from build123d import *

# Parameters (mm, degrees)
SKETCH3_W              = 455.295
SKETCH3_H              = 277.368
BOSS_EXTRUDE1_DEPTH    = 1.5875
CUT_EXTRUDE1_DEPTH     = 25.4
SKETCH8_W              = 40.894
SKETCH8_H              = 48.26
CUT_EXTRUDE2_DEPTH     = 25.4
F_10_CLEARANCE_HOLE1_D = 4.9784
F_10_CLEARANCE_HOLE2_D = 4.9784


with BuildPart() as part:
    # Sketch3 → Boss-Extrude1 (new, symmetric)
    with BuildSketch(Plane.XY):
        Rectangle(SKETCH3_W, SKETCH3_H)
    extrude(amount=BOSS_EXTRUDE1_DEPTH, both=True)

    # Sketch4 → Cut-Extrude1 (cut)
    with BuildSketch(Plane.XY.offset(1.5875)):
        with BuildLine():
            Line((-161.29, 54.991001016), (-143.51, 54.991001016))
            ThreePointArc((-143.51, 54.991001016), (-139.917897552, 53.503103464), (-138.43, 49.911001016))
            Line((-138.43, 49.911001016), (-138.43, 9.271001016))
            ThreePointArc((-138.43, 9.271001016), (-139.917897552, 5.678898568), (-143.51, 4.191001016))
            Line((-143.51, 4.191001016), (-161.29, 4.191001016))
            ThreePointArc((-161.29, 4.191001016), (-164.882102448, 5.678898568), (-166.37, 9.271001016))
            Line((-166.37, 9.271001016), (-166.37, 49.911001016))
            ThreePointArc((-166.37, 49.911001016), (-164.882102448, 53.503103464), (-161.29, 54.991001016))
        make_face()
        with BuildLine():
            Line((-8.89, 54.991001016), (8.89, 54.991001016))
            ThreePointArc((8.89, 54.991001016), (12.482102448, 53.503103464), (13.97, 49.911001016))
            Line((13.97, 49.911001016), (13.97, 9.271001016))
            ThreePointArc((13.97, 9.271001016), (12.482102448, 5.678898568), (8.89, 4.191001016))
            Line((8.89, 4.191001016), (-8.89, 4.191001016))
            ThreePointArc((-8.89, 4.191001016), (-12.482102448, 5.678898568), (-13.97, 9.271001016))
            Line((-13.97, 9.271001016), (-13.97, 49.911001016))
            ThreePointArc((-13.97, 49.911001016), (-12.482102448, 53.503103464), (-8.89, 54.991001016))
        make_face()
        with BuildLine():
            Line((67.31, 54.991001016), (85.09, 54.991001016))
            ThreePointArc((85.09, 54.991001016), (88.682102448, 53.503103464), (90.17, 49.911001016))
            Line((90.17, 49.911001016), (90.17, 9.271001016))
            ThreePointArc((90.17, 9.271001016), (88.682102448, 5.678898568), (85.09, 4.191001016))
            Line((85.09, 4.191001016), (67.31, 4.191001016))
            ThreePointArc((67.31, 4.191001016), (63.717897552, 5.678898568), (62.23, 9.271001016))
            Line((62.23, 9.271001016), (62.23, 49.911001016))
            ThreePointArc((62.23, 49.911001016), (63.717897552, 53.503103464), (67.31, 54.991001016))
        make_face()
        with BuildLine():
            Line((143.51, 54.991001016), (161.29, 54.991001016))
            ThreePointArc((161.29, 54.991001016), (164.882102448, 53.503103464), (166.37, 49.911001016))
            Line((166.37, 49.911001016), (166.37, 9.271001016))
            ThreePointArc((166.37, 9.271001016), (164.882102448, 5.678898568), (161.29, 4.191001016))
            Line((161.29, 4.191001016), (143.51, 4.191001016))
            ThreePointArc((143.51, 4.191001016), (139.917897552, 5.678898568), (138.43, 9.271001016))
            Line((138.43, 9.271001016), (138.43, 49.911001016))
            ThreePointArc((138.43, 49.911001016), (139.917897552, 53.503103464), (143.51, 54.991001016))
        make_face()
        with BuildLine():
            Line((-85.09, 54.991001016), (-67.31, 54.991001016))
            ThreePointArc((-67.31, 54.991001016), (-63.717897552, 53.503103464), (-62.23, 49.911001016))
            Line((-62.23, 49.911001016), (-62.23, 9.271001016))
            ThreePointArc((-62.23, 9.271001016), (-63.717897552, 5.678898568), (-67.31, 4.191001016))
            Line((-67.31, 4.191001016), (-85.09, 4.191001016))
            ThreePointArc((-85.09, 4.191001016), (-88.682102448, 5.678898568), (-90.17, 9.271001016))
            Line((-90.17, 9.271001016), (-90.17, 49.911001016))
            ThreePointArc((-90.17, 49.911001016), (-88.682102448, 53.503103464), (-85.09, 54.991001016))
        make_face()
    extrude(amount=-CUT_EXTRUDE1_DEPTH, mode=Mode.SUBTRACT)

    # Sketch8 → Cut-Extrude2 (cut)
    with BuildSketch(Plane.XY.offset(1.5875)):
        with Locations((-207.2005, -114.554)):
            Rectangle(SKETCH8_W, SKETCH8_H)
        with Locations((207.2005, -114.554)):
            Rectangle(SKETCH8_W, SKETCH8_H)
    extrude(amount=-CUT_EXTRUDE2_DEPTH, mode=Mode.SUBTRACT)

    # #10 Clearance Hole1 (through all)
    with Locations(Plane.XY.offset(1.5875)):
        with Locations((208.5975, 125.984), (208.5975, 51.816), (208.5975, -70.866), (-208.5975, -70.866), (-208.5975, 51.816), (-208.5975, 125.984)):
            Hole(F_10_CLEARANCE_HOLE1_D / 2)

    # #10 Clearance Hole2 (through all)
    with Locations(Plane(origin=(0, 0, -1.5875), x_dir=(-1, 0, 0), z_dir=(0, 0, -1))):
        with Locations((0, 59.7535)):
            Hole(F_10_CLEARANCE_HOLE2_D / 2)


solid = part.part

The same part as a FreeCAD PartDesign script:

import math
import FreeCAD as App
import Part
import Sketcher
from FreeCAD import Vector
Q = App.Units.Quantity


def add_polygon(sketch, points):
    """Adds a closed chain of lines whose ends are joined by coincident constraints."""
    first, n = sketch.GeometryCount, len(points)
    for a, b in zip(points, points[1:] + points[:1]):
        sketch.addGeometry(Part.LineSegment(App.Vector(*a, 0), App.Vector(*b, 0)), False)
    for i in range(n):
        sketch.addConstraint(Sketcher.Constraint("Coincident", first + i, 2, first + (i + 1) % n, 1))

doc = App.newDocument("Part")
body = doc.addObject("PartDesign::Body", "Body")

# Sketch on XY plane
sketch1 = body.newObject("Sketcher::SketchObject", "Sketch")
sketch1.AttachmentSupport = (doc.getObject("XY_Plane"), [""])
sketch1.MapMode = "FlatFace"
add_polygon(sketch1, [(-228, 139), (-228, -139), (228, -139), (228, 139)])  # lines 0-3
sketch1.addConstraint([
    Sketcher.Constraint("Vertical", 0),
    Sketcher.Constraint("Horizontal", 1),
    Sketcher.Constraint("Vertical", 2),
    Sketcher.Constraint("Horizontal", 3),
    Sketcher.Constraint("Symmetric", 0, 2, 2, 2, -1, 1),
    Sketcher.Constraint("DistanceY", 0, 2, 0, 1, Q("10.92 in")),
    Sketcher.Constraint("DistanceX", 1, 1, 1, 2, Q("17.925 in")),
])
pad1 = body.newObject("PartDesign::Pad", "Pad")
pad1.Profile = sketch1
pad1.Length = Q("0.125 in")
pad1.Midplane = True

# Sketch on XY plane
sketch2 = body.newObject("Sketcher::SketchObject", "Sketch001")
sketch2.AttachmentSupport = (doc.getObject("XY_Plane"), [""])
sketch2.MapMode = "FlatFace"
sketch2.AttachmentOffset = App.Placement(Vector(0, 0, 0.0625 * 25.4), App.Rotation())
sketch2.addGeometry([
    Part.LineSegment(Vector(-144, 55, 0), Vector(-161, 55, 0)),  # 0
    Part.ArcOfCircle(Part.Circle(Vector(-161, 50, 0), Vector(0, 0, 1), 5), math.radians(90), math.radians(180)),  # 1
    Part.LineSegment(Vector(-166, 50, 0), Vector(-166, 9, 0)),  # 2
    Part.ArcOfCircle(Part.Circle(Vector(-161, 9, 0), Vector(0, 0, 1), 5), math.radians(-180), math.radians(-90)),  # 3
    Part.LineSegment(Vector(-161, 4, 0), Vector(-144, 4, 0)),  # 4
    Part.ArcOfCircle(Part.Circle(Vector(-144, 9, 0), Vector(0, 0, 1), 5), math.radians(-90), math.radians(0)),  # 5
    Part.LineSegment(Vector(-138, 9, 0), Vector(-138, 50, 0)),  # 6
    Part.ArcOfCircle(Part.Circle(Vector(-144, 50, 0), Vector(0, 0, 1), 5), math.radians(0), math.radians(90)),  # 7
    Part.LineSegment(Vector(9, 55, 0), Vector(-9, 55, 0)),  # 8
    Part.ArcOfCircle(Part.Circle(Vector(-9, 50, 0), Vector(0, 0, 1), 5), math.radians(90), math.radians(180)),  # 9
    Part.LineSegment(Vector(-14, 50, 0), Vector(-14, 9, 0)),  # 10
    Part.ArcOfCircle(Part.Circle(Vector(-9, 9, 0), Vector(0, 0, 1), 5), math.radians(-180), math.radians(-90)),  # 11
    Part.LineSegment(Vector(-9, 4, 0), Vector(9, 4, 0)),  # 12
    Part.ArcOfCircle(Part.Circle(Vector(9, 9, 0), Vector(0, 0, 1), 5), math.radians(-90), math.radians(0)),  # 13
    Part.LineSegment(Vector(14, 9, 0), Vector(14, 50, 0)),  # 14
    Part.ArcOfCircle(Part.Circle(Vector(9, 50, 0), Vector(0, 0, 1), 5), math.radians(0), math.radians(90)),  # 15
    Part.LineSegment(Vector(85, 55, 0), Vector(67, 55, 0)),  # 16
    Part.ArcOfCircle(Part.Circle(Vector(67, 50, 0), Vector(0, 0, 1), 5), math.radians(90), math.radians(180)),  # 17
    Part.LineSegment(Vector(62, 50, 0), Vector(62, 9, 0)),  # 18
    Part.ArcOfCircle(Part.Circle(Vector(67, 9, 0), Vector(0, 0, 1), 5), math.radians(-180), math.radians(-90)),  # 19
    Part.LineSegment(Vector(67, 4, 0), Vector(85, 4, 0)),  # 20
    Part.ArcOfCircle(Part.Circle(Vector(85, 9, 0), Vector(0, 0, 1), 5), math.radians(-90), math.radians(0)),  # 21
    Part.LineSegment(Vector(90, 9, 0), Vector(90, 50, 0)),  # 22
    Part.ArcOfCircle(Part.Circle(Vector(85, 50, 0), Vector(0, 0, 1), 5), math.radians(0), math.radians(90)),  # 23
    Part.LineSegment(Vector(161, 55, 0), Vector(144, 55, 0)),  # 24
    Part.ArcOfCircle(Part.Circle(Vector(144, 50, 0), Vector(0, 0, 1), 5), math.radians(90), math.radians(180)),  # 25
    Part.LineSegment(Vector(138, 50, 0), Vector(138, 9, 0)),  # 26
    Part.ArcOfCircle(Part.Circle(Vector(144, 9, 0), Vector(0, 0, 1), 5), math.radians(-180), math.radians(-90)),  # 27
    Part.LineSegment(Vector(144, 4, 0), Vector(161, 4, 0)),  # 28
    Part.ArcOfCircle(Part.Circle(Vector(161, 9, 0), Vector(0, 0, 1), 5), math.radians(-90), math.radians(0)),  # 29
    Part.LineSegment(Vector(166, 9, 0), Vector(166, 50, 0)),  # 30
    Part.ArcOfCircle(Part.Circle(Vector(161, 50, 0), Vector(0, 0, 1), 5), math.radians(0), math.radians(90)),  # 31
    Part.LineSegment(Vector(-67, 55, 0), Vector(-85, 55, 0)),  # 32
    Part.ArcOfCircle(Part.Circle(Vector(-85, 50, 0), Vector(0, 0, 1), 5), math.radians(90), math.radians(180)),  # 33
    Part.LineSegment(Vector(-90, 50, 0), Vector(-90, 9, 0)),  # 34
    Part.ArcOfCircle(Part.Circle(Vector(-85, 9, 0), Vector(0, 0, 1), 5), math.radians(-180), math.radians(-90)),  # 35
    Part.LineSegment(Vector(-85, 4, 0), Vector(-67, 4, 0)),  # 36
    Part.ArcOfCircle(Part.Circle(Vector(-67, 9, 0), Vector(0, 0, 1), 5), math.radians(-90), math.radians(0)),  # 37
    Part.LineSegment(Vector(-62, 9, 0), Vector(-62, 50, 0)),  # 38
    Part.ArcOfCircle(Part.Circle(Vector(-67, 50, 0), Vector(0, 0, 1), 5), math.radians(0), math.radians(90)),  # 39
], False)
sketch2.addConstraint([
    Sketcher.Constraint("Tangent", 0, 2, 1, 1),
    Sketcher.Constraint("Tangent", 1, 2, 2, 1),
    Sketcher.Constraint("Tangent", 2, 2, 3, 1),
    Sketcher.Constraint("Tangent", 3, 2, 4, 1),
    Sketcher.Constraint("Tangent", 4, 2, 5, 1),
    Sketcher.Constraint("Tangent", 5, 2, 6, 1),
    Sketcher.Constraint("Tangent", 6, 2, 7, 1),
    Sketcher.Constraint("Tangent", 7, 2, 0, 1),
    Sketcher.Constraint("Tangent", 8, 2, 9, 1),
    Sketcher.Constraint("Tangent", 9, 2, 10, 1),
    Sketcher.Constraint("Tangent", 10, 2, 11, 1),
    Sketcher.Constraint("Tangent", 11, 2, 12, 1),
    Sketcher.Constraint("Tangent", 12, 2, 13, 1),
    Sketcher.Constraint("Tangent", 13, 2, 14, 1),
    Sketcher.Constraint("Tangent", 14, 2, 15, 1),
    Sketcher.Constraint("Tangent", 15, 2, 8, 1),
    Sketcher.Constraint("Tangent", 16, 2, 17, 1),
    Sketcher.Constraint("Tangent", 17, 2, 18, 1),
    Sketcher.Constraint("Tangent", 18, 2, 19, 1),
    Sketcher.Constraint("Tangent", 19, 2, 20, 1),
    Sketcher.Constraint("Tangent", 20, 2, 21, 1),
    Sketcher.Constraint("Tangent", 21, 2, 22, 1),
    Sketcher.Constraint("Tangent", 22, 2, 23, 1),
    Sketcher.Constraint("Tangent", 23, 2, 16, 1),
    Sketcher.Constraint("Tangent", 24, 2, 25, 1),
    Sketcher.Constraint("Tangent", 25, 2, 26, 1),
    Sketcher.Constraint("Tangent", 26, 2, 27, 1),
    Sketcher.Constraint("Tangent", 27, 2, 28, 1),
    Sketcher.Constraint("Tangent", 28, 2, 29, 1),
    Sketcher.Constraint("Tangent", 29, 2, 30, 1),
    Sketcher.Constraint("Tangent", 30, 2, 31, 1),
    Sketcher.Constraint("Tangent", 31, 2, 24, 1),
    Sketcher.Constraint("Tangent", 32, 2, 33, 1),
    Sketcher.Constraint("Tangent", 33, 2, 34, 1),
    Sketcher.Constraint("Tangent", 34, 2, 35, 1),
    Sketcher.Constraint("Tangent", 35, 2, 36, 1),
    Sketcher.Constraint("Tangent", 36, 2, 37, 1),
    Sketcher.Constraint("Tangent", 37, 2, 38, 1),
    Sketcher.Constraint("Tangent", 38, 2, 39, 1),
    Sketcher.Constraint("Tangent", 39, 2, 32, 1),
    Sketcher.Constraint("Horizontal", 0),
    Sketcher.Constraint("Vertical", 2),
    Sketcher.Constraint("Horizontal", 4),
    Sketcher.Constraint("Vertical", 6),
    Sketcher.Constraint("Horizontal", 8),
    Sketcher.Constraint("Vertical", 10),
    Sketcher.Constraint("Horizontal", 12),
    Sketcher.Constraint("Vertical", 14),
    Sketcher.Constraint("Horizontal", 16),
    Sketcher.Constraint("Vertical", 18),
    Sketcher.Constraint("Horizontal", 20),
    Sketcher.Constraint("Vertical", 22),
    Sketcher.Constraint("Horizontal", 24),
    Sketcher.Constraint("Vertical", 26),
    Sketcher.Constraint("Horizontal", 28),
    Sketcher.Constraint("Vertical", 30),
    Sketcher.Constraint("Horizontal", 32),
    Sketcher.Constraint("Vertical", 34),
    Sketcher.Constraint("Horizontal", 36),
    Sketcher.Constraint("Vertical", 38),
    Sketcher.Constraint("Equal", 1, 3),
    Sketcher.Constraint("Equal", 3, 5),
    Sketcher.Constraint("Equal", 5, 7),
    Sketcher.Constraint("Equal", 7, 9),
    Sketcher.Constraint("Equal", 9, 11),
    Sketcher.Constraint("Equal", 11, 13),
    Sketcher.Constraint("Equal", 13, 15),
    Sketcher.Constraint("Equal", 15, 17),
    Sketcher.Constraint("Equal", 17, 19),
    Sketcher.Constraint("Equal", 19, 21),
    Sketcher.Constraint("Equal", 21, 23),
    Sketcher.Constraint("Equal", 23, 25),
    Sketcher.Constraint("Equal", 25, 27),
    Sketcher.Constraint("Equal", 27, 29),
    Sketcher.Constraint("Equal", 29, 31),
    Sketcher.Constraint("Equal", 31, 33),
    Sketcher.Constraint("Equal", 33, 35),
    Sketcher.Constraint("Equal", 35, 37),
    Sketcher.Constraint("Equal", 37, 39),
    Sketcher.Constraint("Symmetric", 7, 3, 25, 3, -2),
    Sketcher.Constraint("Symmetric", 3, 3, 29, 3, -2),
    Sketcher.Constraint("Symmetric", 23, 3, 33, 3, -2),
    Sketcher.Constraint("Symmetric", 19, 3, 37, 3, -2),
    Sketcher.Constraint("Horizontal", 7, 3, 9, 3),
    Sketcher.Constraint("Horizontal", 5, 3, 11, 3),
    Sketcher.Constraint("Horizontal", 15, 3, 17, 3),
    Sketcher.Constraint("Horizontal", 13, 3, 19, 3),
    Sketcher.Constraint("Equal", 4, 8),
    Sketcher.Constraint("Equal", 12, 16),
    Sketcher.Constraint("Radius", 1, Q("0.2 in")),
    Sketcher.Constraint("DistanceX", 0, 2, 0, 1, Q("0.7 in")),
    Sketcher.Constraint("DistanceY", 2, 2, 2, 1, Q("1.6 in")),
    Sketcher.Constraint("DistanceX", 1, 3, 9, 3, Q("6 in")),
    Sketcher.Constraint("DistanceX", 9, 3, 17, 3, Q("3 in")),
    Sketcher.Constraint("DistanceX", 17, 3, 25, 3, Q("3 in")),
    Sketcher.Constraint("DistanceY", -1, 1, 1, 3, Q("1.965 in")),
])
pocket1 = body.newObject("PartDesign::Pocket", "Pocket")
pocket1.Profile = sketch2
pocket1.Length = Q("1 in")

# Sketch on XY plane
sketch3 = body.newObject("Sketcher::SketchObject", "Sketch002")
sketch3.AttachmentSupport = (doc.getObject("XY_Plane"), [""])
sketch3.MapMode = "FlatFace"
sketch3.AttachmentOffset = App.Placement(Vector(0, 0, 0.0625 * 25.4), App.Rotation())
add_polygon(sketch3, [(-228, -90), (-228, -139), (-187, -139), (-187, -90)])  # lines 0-3
add_polygon(sketch3, [(187, -90), (187, -139), (228, -139), (228, -90)])  # lines 4-7
sketch3.addConstraint([
    Sketcher.Constraint("Vertical", 0),
    Sketcher.Constraint("Horizontal", 1),
    Sketcher.Constraint("Vertical", 2),
    Sketcher.Constraint("Horizontal", 3),
    Sketcher.Constraint("Vertical", 4),
    Sketcher.Constraint("Horizontal", 5),
    Sketcher.Constraint("Vertical", 6),
    Sketcher.Constraint("Horizontal", 7),
    Sketcher.Constraint("Symmetric", 1, 2, 4, 2, -2),
    Sketcher.Constraint("Symmetric", 3, 2, 6, 2, -2),
    Sketcher.Constraint("DistanceY", 0, 2, 0, 1, Q("1.9 in")),
    Sketcher.Constraint("DistanceX", 1, 1, 1, 2, Q("1.61 in")),
    Sketcher.Constraint("DistanceY", 0, 2, -1, 1, Q("5.46 in")),
    Sketcher.Constraint("DistanceX", 1, 2, 4, 2, Q("14.705 in")),
])
pocket2 = body.newObject("PartDesign::Pocket", "Pocket001")
pocket2.Profile = sketch3
pocket2.Length = Q("1 in")

# Sketch on XY plane
sketch4 = body.newObject("Sketcher::SketchObject", "Sketch003")
sketch4.AttachmentSupport = (doc.getObject("XY_Plane"), [""])
sketch4.MapMode = "FlatFace"
sketch4.AttachmentOffset = App.Placement(Vector(0, 0, 0.0625 * 25.4), App.Rotation())
sketch4.addGeometry([
    Part.Circle(Vector(208.6, 126, 0), Vector(0, 0, 1), 2.5),  # 0
    Part.Circle(Vector(208.6, 51.8, 0), Vector(0, 0, 1), 2.5),  # 1
    Part.Circle(Vector(208.6, -70.9, 0), Vector(0, 0, 1), 2.5),  # 2
    Part.Circle(Vector(-208.6, -70.9, 0), Vector(0, 0, 1), 2.5),  # 3
    Part.Circle(Vector(-208.6, 51.8, 0), Vector(0, 0, 1), 2.5),  # 4
    Part.Circle(Vector(-208.6, 126, 0), Vector(0, 0, 1), 2.5),  # 5
], False)
sketch4.addConstraint([
    Sketcher.Constraint("Equal", 0, 1),
    Sketcher.Constraint("Equal", 1, 2),
    Sketcher.Constraint("Equal", 2, 3),
    Sketcher.Constraint("Equal", 3, 4),
    Sketcher.Constraint("Equal", 4, 5),
    Sketcher.Constraint("Symmetric", 2, 3, 3, 3, -2),
    Sketcher.Constraint("Symmetric", 1, 3, 4, 3, -2),
    Sketcher.Constraint("Symmetric", 0, 3, 5, 3, -2),
    Sketcher.Constraint("Vertical", 0, 3, 1, 3),
    Sketcher.Constraint("Vertical", 1, 3, 2, 3),
    Sketcher.Constraint("Diameter", 0, Q("0.196 in")),
    Sketcher.Constraint("DistanceY", -1, 1, 0, 3, Q("4.96 in")),
    Sketcher.Constraint("DistanceY", -1, 1, 1, 3, Q("2.04 in")),
    Sketcher.Constraint("DistanceY", 2, 3, -1, 1, Q("2.79 in")),
    Sketcher.Constraint("DistanceX", 3, 3, 2, 3, Q("16.425 in")),
])
doc.recompute()
hole = body.newObject("PartDesign::Hole", "Hole")
hole.Profile = sketch4
hole.ThreadType = "None"
hole.Diameter = Q("0.196 in")
hole.DepthType = "ThroughAll"

# Sketch on XY plane
sketch5 = body.newObject("Sketcher::SketchObject", "Sketch004")
sketch5.AttachmentSupport = (doc.getObject("XY_Plane"), [""])
sketch5.MapMode = "FlatFace"
sketch5.AttachmentOffset = App.Placement(Vector(0, 0, -0.0625 * 25.4), App.Rotation())
sketch5.addGeometry(Part.Circle(Vector(0, 59.8, 0), Vector(0, 0, 1), 2.5), False)
sketch5.addConstraint([
    Sketcher.Constraint("PointOnObject", 0, 3, -2),
    Sketcher.Constraint("Diameter", 0, Q("0.196 in")),
    Sketcher.Constraint("DistanceY", -1, 1, 0, 3, Q("2.3525 in")),
])
doc.recompute()
hole2 = body.newObject("PartDesign::Hole", "Hole001")
hole2.Profile = sketch5
hole2.ThreadType = "None"
hole2.Diameter = Q("0.196 in")
hole2.DepthType = "ThroughAll"
hole2.Reversed = True

doc.recompute()
